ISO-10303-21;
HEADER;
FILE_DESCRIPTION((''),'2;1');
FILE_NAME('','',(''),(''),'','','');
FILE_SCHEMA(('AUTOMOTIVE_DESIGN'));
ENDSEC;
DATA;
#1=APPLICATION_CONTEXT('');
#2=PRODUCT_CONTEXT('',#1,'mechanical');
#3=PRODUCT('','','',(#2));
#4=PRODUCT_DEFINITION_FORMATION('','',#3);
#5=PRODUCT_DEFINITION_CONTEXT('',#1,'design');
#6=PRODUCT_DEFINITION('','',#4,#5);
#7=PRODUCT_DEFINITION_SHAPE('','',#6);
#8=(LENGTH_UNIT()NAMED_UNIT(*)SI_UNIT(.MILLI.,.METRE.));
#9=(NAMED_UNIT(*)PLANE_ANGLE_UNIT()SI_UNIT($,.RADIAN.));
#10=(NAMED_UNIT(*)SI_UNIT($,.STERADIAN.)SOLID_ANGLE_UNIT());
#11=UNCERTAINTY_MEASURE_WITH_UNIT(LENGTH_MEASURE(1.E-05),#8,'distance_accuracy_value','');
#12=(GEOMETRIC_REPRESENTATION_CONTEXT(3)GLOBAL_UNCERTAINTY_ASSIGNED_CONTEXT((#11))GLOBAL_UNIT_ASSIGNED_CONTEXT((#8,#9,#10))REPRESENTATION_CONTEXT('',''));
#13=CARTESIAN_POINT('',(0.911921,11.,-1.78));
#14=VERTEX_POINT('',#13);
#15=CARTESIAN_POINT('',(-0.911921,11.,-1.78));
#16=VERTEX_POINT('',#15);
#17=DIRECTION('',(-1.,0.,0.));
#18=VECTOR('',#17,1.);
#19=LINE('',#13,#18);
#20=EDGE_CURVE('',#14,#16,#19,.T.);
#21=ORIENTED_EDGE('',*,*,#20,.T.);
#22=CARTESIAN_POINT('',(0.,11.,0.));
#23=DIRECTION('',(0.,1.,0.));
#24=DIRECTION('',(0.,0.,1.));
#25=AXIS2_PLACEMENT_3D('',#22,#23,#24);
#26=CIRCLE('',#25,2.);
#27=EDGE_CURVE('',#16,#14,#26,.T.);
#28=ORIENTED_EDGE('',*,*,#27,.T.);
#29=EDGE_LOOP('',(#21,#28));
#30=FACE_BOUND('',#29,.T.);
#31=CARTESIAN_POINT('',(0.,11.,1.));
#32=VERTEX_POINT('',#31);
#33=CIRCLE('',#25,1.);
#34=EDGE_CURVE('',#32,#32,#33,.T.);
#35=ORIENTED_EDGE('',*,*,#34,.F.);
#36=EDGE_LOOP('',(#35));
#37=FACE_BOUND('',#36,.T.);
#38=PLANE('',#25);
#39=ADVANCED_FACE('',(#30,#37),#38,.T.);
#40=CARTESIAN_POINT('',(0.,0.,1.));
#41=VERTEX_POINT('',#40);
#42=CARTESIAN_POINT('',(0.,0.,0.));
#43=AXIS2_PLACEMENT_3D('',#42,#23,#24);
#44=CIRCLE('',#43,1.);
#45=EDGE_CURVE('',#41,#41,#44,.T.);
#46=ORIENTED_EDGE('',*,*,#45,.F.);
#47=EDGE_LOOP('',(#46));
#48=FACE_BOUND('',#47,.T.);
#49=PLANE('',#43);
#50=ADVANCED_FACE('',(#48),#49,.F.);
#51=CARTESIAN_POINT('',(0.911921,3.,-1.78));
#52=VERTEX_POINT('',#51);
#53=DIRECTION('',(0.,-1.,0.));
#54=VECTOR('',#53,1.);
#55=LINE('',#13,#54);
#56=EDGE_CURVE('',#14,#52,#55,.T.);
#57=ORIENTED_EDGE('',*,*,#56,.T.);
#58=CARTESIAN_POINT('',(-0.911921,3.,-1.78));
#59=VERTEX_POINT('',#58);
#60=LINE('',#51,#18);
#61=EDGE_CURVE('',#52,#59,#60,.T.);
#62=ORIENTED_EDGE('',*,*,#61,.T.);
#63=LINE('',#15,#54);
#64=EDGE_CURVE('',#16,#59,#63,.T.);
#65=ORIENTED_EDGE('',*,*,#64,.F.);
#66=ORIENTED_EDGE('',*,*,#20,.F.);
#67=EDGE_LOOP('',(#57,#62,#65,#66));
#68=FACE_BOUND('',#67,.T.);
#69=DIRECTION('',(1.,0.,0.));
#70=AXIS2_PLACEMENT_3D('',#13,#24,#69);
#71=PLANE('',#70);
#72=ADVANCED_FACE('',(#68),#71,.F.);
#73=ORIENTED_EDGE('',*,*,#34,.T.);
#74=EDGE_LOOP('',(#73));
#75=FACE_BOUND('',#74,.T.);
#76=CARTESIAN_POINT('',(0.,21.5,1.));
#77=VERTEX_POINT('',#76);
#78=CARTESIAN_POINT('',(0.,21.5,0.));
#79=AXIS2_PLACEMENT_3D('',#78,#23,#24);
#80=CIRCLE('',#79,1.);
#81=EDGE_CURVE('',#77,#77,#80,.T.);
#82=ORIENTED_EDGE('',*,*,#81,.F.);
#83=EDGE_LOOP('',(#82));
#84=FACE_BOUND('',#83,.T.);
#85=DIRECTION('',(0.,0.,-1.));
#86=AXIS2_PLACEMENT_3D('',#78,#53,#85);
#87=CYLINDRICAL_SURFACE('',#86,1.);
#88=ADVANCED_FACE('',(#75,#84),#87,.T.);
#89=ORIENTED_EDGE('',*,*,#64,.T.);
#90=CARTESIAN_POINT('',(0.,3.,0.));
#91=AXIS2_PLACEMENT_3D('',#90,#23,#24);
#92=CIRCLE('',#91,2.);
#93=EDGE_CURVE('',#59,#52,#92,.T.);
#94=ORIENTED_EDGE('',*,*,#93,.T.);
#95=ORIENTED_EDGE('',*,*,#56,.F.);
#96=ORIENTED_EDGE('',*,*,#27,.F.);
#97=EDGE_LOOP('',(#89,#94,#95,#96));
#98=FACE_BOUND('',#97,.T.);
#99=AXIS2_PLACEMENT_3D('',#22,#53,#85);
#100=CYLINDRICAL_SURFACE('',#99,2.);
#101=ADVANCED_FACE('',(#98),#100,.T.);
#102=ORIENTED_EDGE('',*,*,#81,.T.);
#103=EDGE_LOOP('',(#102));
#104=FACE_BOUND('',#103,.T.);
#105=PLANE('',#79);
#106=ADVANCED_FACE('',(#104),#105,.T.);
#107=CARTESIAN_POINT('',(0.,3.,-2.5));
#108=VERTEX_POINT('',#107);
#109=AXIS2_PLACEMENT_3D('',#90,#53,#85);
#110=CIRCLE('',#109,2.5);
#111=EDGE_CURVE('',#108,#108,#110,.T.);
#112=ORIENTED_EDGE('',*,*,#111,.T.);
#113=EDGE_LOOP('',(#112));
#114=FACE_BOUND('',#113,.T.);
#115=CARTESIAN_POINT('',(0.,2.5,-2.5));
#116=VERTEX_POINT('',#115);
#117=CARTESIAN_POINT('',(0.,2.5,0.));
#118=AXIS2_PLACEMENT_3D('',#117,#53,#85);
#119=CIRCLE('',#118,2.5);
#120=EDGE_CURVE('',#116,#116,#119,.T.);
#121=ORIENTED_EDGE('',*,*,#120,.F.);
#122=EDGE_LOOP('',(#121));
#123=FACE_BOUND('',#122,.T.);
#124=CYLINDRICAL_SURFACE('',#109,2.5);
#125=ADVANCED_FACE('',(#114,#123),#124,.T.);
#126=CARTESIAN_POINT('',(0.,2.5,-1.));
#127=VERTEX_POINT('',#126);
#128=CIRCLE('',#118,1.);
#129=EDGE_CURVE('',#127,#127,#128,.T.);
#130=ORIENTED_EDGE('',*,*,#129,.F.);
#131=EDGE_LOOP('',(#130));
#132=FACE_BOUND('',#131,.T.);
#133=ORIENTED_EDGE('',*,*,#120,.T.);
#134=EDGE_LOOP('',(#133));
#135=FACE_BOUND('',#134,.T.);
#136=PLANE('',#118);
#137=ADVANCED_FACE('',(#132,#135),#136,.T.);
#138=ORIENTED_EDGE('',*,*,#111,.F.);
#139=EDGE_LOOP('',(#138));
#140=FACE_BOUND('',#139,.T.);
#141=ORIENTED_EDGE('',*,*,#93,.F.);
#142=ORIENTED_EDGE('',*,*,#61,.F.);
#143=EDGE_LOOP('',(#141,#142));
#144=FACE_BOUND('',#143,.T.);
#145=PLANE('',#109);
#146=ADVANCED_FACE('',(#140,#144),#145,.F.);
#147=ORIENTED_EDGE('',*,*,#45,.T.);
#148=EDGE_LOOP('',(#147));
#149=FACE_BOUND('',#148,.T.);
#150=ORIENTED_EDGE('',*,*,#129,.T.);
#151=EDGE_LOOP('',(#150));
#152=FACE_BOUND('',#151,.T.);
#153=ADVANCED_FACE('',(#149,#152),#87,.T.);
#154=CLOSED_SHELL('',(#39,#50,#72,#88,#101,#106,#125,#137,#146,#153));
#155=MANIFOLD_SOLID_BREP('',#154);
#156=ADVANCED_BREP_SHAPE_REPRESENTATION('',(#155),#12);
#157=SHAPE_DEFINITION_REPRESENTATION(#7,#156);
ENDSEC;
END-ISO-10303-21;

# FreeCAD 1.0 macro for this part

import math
import FreeCAD as App
import Part
import Sketcher
from FreeCAD import Vector
Q = App.Units.Quantity

doc = App.newDocument("Part")
body = doc.addObject("PartDesign::Body", "Body")

# Sketch on XZ plane
sketch1 = body.newObject("Sketcher::SketchObject", "Sketch")
sketch1.AttachmentSupport = (doc.getObject("XZ_Plane"), [""])
sketch1.MapMode = "FlatFace"
sketch1.addGeometry(Part.Circle(Vector(0, 0, 0), Vector(0, 0, 1), 1), False)
sketch1.addConstraint(Sketcher.Constraint("Coincident", 0, 3, -1, 1))
sketch1.addConstraint(Sketcher.Constraint("Diameter", 0, Q("2 mm")))
pad1 = body.newObject("PartDesign::Pad", "Pad")
pad1.Profile = sketch1
pad1.Length = 21.5
pad1.Reversed = True

# Sketch on XZ plane
sketch2 = body.newObject("Sketcher::SketchObject", "Sketch001")
sketch2.AttachmentSupport = (doc.getObject("XZ_Plane"), [""])
sketch2.MapMode = "FlatFace"
sketch2.AttachmentOffset = App.Placement(Vector(0, 0, -2.5), App.Rotation())
sketch2.addGeometry(Part.Circle(Vector(0, 0, 0), Vector(0, 0, 1), 2.5), False)
sketch2.addGeometry(Part.Circle(Vector(0, 0, 0), Vector(0, 0, 1), 1), False)
sketch2.addConstraint(Sketcher.Constraint("Coincident", 0, 3, -1, 1))
sketch2.addConstraint(Sketcher.Constraint("Coincident", 1, 3, -1, 1))
sketch2.addConstraint(Sketcher.Constraint("Diameter", 0, Q("5 mm")))
sketch2.addConstraint(Sketcher.Constraint("Diameter", 1, Q("2 mm")))
pad2 = body.newObject("PartDesign::Pad", "Pad001")
pad2.Profile = sketch2
pad2.Length = 0.5
pad2.Reversed = True

# Sketch on XZ plane
sketch3 = body.newObject("Sketcher::SketchObject", "Sketch002")
sketch3.AttachmentSupport = (doc.getObject("XZ_Plane"), [""])
sketch3.MapMode = "FlatFace"
sketch3.AttachmentOffset = App.Placement(Vector(0, 0, -3), App.Rotation())
sketch3.addGeometry(Part.LineSegment(Vector(0.911921, -1.78, 0), Vector(-0.911921, -1.78, 0)), False)
sketch3.addGeometry(Part.ArcOfCircle(Part.Circle(Vector(0, 0, 0), Vector(0, 0, 1), 2), math.radians(-62.873247), math.radians(242.873247)), False)
sketch3.addGeometry(Part.Circle(Vector(0, 0, 0), Vector(0, 0, 1), 1), False)
sketch3.addConstraint(Sketcher.Constraint("Coincident", 0, 1, 1, 1))
sketch3.addConstraint(Sketcher.Constraint("Coincident", 1, 2, 0, 2))
sketch3.addConstraint(Sketcher.Constraint("Horizontal", 0))
sketch3.addConstraint(Sketcher.Constraint("Coincident", 1, 3, -1, 1))
sketch3.addConstraint(Sketcher.Constraint("Coincident", 2, 3, -1, 1))
sketch3.addConstraint(Sketcher.Constraint("Diameter", 2, Q("2 mm")))
sketch3.addConstraint(Sketcher.Constraint("Radius", 1, Q("2 mm")))
sketch3.addConstraint(Sketcher.Constraint("DistanceY", 0, 1, -1, 1, Q("1.78 mm")))
pad3 = body.newObject("PartDesign::Pad", "Pad002")
pad3.Profile = sketch3
pad3.Length = 8
pad3.Reversed = True

doc.recompute()
